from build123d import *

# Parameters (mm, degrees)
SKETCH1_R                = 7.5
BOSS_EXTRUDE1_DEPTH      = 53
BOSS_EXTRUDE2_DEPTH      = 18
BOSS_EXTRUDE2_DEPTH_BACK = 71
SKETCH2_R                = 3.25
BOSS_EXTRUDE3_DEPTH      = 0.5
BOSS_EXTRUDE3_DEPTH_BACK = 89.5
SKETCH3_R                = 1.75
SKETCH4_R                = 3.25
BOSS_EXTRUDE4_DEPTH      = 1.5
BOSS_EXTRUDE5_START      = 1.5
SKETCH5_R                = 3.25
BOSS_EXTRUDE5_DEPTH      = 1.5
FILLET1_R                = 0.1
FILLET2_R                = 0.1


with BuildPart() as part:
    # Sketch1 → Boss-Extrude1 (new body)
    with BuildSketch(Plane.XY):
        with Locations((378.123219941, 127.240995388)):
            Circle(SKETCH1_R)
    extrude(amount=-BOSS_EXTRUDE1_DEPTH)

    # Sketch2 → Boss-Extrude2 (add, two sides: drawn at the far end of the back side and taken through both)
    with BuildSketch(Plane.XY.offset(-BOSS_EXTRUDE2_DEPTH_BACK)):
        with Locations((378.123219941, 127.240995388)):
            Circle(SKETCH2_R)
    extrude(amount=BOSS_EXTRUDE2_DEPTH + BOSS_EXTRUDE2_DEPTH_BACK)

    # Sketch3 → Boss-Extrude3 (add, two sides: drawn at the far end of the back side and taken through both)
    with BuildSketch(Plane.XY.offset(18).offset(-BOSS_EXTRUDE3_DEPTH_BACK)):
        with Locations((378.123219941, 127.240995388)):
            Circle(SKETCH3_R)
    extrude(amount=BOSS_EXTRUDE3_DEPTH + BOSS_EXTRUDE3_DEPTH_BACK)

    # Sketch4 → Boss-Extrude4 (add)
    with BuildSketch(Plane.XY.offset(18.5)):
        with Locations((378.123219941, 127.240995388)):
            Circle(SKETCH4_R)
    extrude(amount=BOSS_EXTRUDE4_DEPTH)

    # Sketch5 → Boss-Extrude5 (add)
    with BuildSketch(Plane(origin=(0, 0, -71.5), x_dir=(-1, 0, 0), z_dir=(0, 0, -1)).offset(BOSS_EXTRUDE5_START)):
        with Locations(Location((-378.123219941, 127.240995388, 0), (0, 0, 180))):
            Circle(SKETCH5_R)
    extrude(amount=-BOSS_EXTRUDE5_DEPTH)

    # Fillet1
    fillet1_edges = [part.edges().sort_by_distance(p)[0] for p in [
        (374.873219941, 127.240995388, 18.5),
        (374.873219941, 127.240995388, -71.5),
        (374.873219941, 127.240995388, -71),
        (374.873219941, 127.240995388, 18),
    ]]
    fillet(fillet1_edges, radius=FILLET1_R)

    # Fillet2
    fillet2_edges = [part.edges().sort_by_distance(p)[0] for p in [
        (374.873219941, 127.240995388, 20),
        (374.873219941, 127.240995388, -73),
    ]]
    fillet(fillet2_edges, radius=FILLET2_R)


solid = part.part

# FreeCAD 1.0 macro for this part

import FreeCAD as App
import Part
import Sketcher


def edges_at(feature, points):
    """Names of the edges that pass closest to the given points."""
    edges = feature.Shape.Edges
    near = lambda p: min(range(len(edges)), key=lambda i: edges[i].distToShape(Part.Vertex(*p))[0])
    return sorted({f"Edge{near(p) + 1}" for p in points})

doc = App.newDocument("Part")
body = doc.addObject("PartDesign::Body", "Body")

# Sketch on XY plane
sketch1 = body.newObject("Sketcher::SketchObject", "Sketch")
sketch1.AttachmentSupport = (doc.getObject("XY_Plane"), [""])
sketch1.MapMode = "FlatFace"
sketch1.addGeometry(Part.Circle(App.Vector(378, 127, 0), App.Vector(0, 0, 1), 8), False)
sketch1.addConstraint([
    Sketcher.Constraint("Diameter", 0, 15.0),
    Sketcher.Constraint("DistanceX", -1, 1, 0, 3, 378.12322),
    Sketcher.Constraint("DistanceY", -1, 1, 0, 3, 127.240995),
])
pad1 = body.newObject("PartDesign::Pad", "Pad")
pad1.Profile = sketch1
pad1.Length = 53
pad1.Reversed = True

# Sketch on XY plane
sketch2 = body.newObject("Sketcher::SketchObject", "Sketch001")
sketch2.AttachmentSupport = (doc.getObject("XY_Plane"), [""])
sketch2.MapMode = "FlatFace"
sketch2.addGeometry(Part.Circle(App.Vector(378.1, 127.2, 0), App.Vector(0, 0, 1), 3.2), False)
sketch2.addConstraint([
    Sketcher.Constraint("Diameter", 0, 6.5),
    Sketcher.Constraint("DistanceX", -1, 1, 0, 3, 378.12322),
    Sketcher.Constraint("DistanceY", -1, 1, 0, 3, 127.240995),
])
pad2 = body.newObject("PartDesign::Pad", "Pad001")
pad2.Profile = sketch2
pad2.Type = "TwoLengths"
pad2.Length = 18
pad2.Length2 = 71

# Sketch on XY plane
sketch3 = body.newObject("Sketcher::SketchObject", "Sketch002")
sketch3.AttachmentSupport = (doc.getObject("XY_Plane"), [""])
sketch3.MapMode = "FlatFace"
sketch3.AttachmentOffset = App.Placement(App.Vector(0, 0, 18), App.Rotation())
sketch3.addGeometry(Part.Circle(App.Vector(378.1, 127.2, 0), App.Vector(0, 0, 1), 1.8), False)
sketch3.addConstraint([
    Sketcher.Constraint("Diameter", 0, 3.5),
    Sketcher.Constraint("DistanceX", -1, 1, 0, 3, 378.12322),
    Sketcher.Constraint("DistanceY", -1, 1, 0, 3, 127.240995),
])
pad3 = body.newObject("PartDesign::Pad", "Pad002")
pad3.Profile = sketch3
pad3.Type = "TwoLengths"
pad3.Length = 0.5
pad3.Length2 = 89.5

# Sketch on XY plane
sketch4 = body.newObject("Sketcher::SketchObject", "Sketch003")
sketch4.AttachmentSupport = (doc.getObject("XY_Plane"), [""])
sketch4.MapMode = "FlatFace"
sketch4.AttachmentOffset = App.Placement(App.Vector(0, 0, 18.5), App.Rotation())
sketch4.addGeometry(Part.Circle(App.Vector(378.1, 127.2, 0), App.Vector(0, 0, 1), 3.2), False)
sketch4.addConstraint([
    Sketcher.Constraint("Diameter", 0, 6.5),
    Sketcher.Constraint("DistanceX", -1, 1, 0, 3, 378.12322),
    Sketcher.Constraint("DistanceY", -1, 1, 0, 3, 127.240995),
])
pad4 = body.newObject("PartDesign::Pad", "Pad003")
pad4.Profile = sketch4
pad4.Length = 1.5

# Sketch on XY plane
sketch5 = body.newObject("Sketcher::SketchObject", "Sketch004")
sketch5.AttachmentSupport = (doc.getObject("XY_Plane"), [""])
sketch5.MapMode = "FlatFace"
sketch5.AttachmentOffset = App.Placement(App.Vector(0, 0, -73), App.Rotation())
sketch5.addGeometry(Part.Circle(App.Vector(378.1, 127.2, 0), App.Vector(0, 0, 1), 3.2), False)
sketch5.addConstraint([
    Sketcher.Constraint("Diameter", 0, 6.5),
    Sketcher.Constraint("DistanceX", -1, 1, 0, 3, 378.12322),
    Sketcher.Constraint("DistanceY", -1, 1, 0, 3, 127.240995),
])
pad5 = body.newObject("PartDesign::Pad", "Pad004")
pad5.Profile = sketch5
pad5.Length = 1.5
doc.recompute()

fillet = body.newObject("PartDesign::Fillet", "Fillet")
fillet.Base = (pad5, edges_at(pad5, [
    (374.873, 127.241, 18.5),
    (374.873, 127.241, -71.5),
    (374.873, 127.241, -71),
    (374.873, 127.241, 18),
]))
fillet.Radius = 0.1
doc.recompute()

fillet2 = body.newObject("PartDesign::Fillet", "Fillet001")
fillet2.Base = (fillet, edges_at(fillet, [(374.873, 127.241, 20), (374.873, 127.241, -73)]))
fillet2.Radius = 0.1

doc.recompute()
